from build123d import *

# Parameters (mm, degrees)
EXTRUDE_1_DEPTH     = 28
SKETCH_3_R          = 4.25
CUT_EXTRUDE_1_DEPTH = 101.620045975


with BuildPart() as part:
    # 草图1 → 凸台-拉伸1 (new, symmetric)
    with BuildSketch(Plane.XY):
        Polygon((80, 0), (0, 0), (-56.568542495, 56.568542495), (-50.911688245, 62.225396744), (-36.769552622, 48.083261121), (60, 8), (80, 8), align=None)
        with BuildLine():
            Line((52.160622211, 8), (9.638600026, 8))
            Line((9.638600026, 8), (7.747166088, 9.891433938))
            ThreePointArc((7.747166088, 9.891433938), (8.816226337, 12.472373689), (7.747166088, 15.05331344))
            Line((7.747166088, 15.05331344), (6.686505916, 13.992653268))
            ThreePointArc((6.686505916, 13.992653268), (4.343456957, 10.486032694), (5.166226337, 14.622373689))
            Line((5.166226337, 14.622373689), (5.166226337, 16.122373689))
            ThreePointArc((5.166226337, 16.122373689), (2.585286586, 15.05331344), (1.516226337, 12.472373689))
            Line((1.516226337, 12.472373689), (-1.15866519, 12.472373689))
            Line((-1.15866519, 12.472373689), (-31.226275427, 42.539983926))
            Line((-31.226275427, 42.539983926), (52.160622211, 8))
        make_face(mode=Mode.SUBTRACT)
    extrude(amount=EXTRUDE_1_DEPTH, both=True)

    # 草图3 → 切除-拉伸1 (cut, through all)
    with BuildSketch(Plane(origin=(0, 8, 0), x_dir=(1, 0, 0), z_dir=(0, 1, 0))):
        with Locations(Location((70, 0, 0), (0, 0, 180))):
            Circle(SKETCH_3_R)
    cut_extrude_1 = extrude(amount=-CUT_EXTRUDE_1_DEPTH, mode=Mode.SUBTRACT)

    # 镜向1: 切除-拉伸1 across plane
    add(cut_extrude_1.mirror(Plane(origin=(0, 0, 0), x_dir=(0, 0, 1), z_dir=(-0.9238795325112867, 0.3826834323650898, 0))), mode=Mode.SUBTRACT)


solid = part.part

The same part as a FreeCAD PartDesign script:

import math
import FreeCAD as App
import Part
import Sketcher
from FreeCAD import Vector
Q = App.Units.Quantity


def add_polygon(sketch, points):
    """Adds a closed chain of lines whose ends are joined by coincident constraints."""
    first, n = sketch.GeometryCount, len(points)
    for a, b in zip(points, points[1:] + points[:1]):
        sketch.addGeometry(Part.LineSegment(App.Vector(*a, 0), App.Vector(*b, 0)), False)
    for i in range(n):
        sketch.addConstraint(Sketcher.Constraint("Coincident", first + i, 2, first + (i + 1) % n, 1))

doc = App.newDocument("Part")
params = doc.addObject("Spreadsheet::Sheet", "Params")
for row, (alias, value) in enumerate([
    ("sketch1_width", "80 mm"),
    ("sketch1_width2", "20 mm"),
    ("sketch1_height", "8 mm"),
    ("sketch1_radius", "3.65 mm"),
    ("sketch1_radius2", "2.15 mm"),
    ("pad1_length", "56 mm"),
    ("sketch2_diameter", "8.5 mm"),
], start=1):
    params.set(f"A{row}", alias)
    params.set(f"B{row}", "=" + value)
    params.setAlias(f"B{row}", alias)

body = doc.addObject("PartDesign::Body", "Body")

sketch1 = doc.addObject("Sketcher::SketchObject", "Sketch")
body.addObject(sketch1)
sketch1.AttachmentSupport = (doc.XY_Plane, [""])
sketch1.MapMode = "FlatFace"
add_polygon(sketch1, [(0, 0), (80, 0), (80, 8), (60, 8), (-36.769553, 48.083261), (-50.911688, 62.225397), (-56.568542, 56.568542)])
sketch1.addGeometry(Part.LineSegment(Vector(52.160622, 8, 0), Vector(9.6386, 8, 0)), False)
sketch1.addGeometry(Part.LineSegment(Vector(9.6386, 8, 0), Vector(7.747166, 9.891434, 0)), False)
sketch1.addGeometry(Part.ArcOfCircle(Part.Circle(Vector(5.166226, 12.472374, 0), Vector(0, 0, 1), 3.65), math.radians(-45), math.radians(45)), False)
sketch1.addGeometry(Part.LineSegment(Vector(7.747166, 15.053313, 0), Vector(6.686506, 13.992653, 0)), False)
sketch1.addGeometry(Part.ArcOfCircle(Part.Circle(Vector(5.166226, 12.472374, 0), Vector(0, 0, 1), 2.15), math.radians(90), math.radians(405)), False)
sketch1.addGeometry(Part.LineSegment(Vector(5.166226, 14.622374, 0), Vector(5.166226, 16.122374, 0)), False)
sketch1.addGeometry(Part.ArcOfCircle(Part.Circle(Vector(5.166226, 12.472374, 0), Vector(0, 0, 1), 3.65), math.radians(90), math.radians(180)), False)
sketch1.addGeometry(Part.LineSegment(Vector(1.516226, 12.472374, 0), Vector(-1.158665, 12.472374, 0)), False)
sketch1.addGeometry(Part.LineSegment(Vector(-1.158665, 12.472374, 0), Vector(-31.226275, 42.539984, 0)), False)
sketch1.addGeometry(Part.LineSegment(Vector(-31.226275, 42.539984, 0), Vector(52.160622, 8, 0)), False)
sketch1.addConstraint(Sketcher.Constraint("Coincident", 7, 2, 8, 1))
sketch1.addConstraint(Sketcher.Constraint("Coincident", 8, 2, 9, 1))
sketch1.addConstraint(Sketcher.Constraint("Coincident", 9, 2, 10, 1))
sketch1.addConstraint(Sketcher.Constraint("Coincident", 10, 2, 11, 2))
sketch1.addConstraint(Sketcher.Constraint("Coincident", 11, 1, 12, 1))
sketch1.addConstraint(Sketcher.Constraint("Coincident", 12, 2, 13, 1))
sketch1.addConstraint(Sketcher.Constraint("Coincident", 13, 2, 14, 1))
sketch1.addConstraint(Sketcher.Constraint("Coincident", 14, 2, 15, 1))
sketch1.addConstraint(Sketcher.Constraint("Coincident", 15, 2, 16, 1))
sketch1.addConstraint(Sketcher.Constraint("Coincident", 16, 2, 7, 1))
sketch1.addConstraint(Sketcher.Constraint("Horizontal", 0))
sketch1.addConstraint(Sketcher.Constraint("Vertical", 1))
sketch1.addConstraint(Sketcher.Constraint("Horizontal", 2))
sketch1.addConstraint(Sketcher.Constraint("Horizontal", 7))
sketch1.addConstraint(Sketcher.Constraint("Vertical", 12))
sketch1.addConstraint(Sketcher.Constraint("Horizontal", 14))
sketch1.addConstraint(Sketcher.Constraint("Coincident", 6, 2, -1, 1))
sketch1.addConstraint(Sketcher.Constraint("Coincident", 11, 3, 9, 3))
sketch1.addConstraint(Sketcher.Constraint("Coincident", 13, 3, 9, 3))
sketch1.addConstraint(Sketcher.Constraint("Equal", 9, 13))
sketch1.addConstraint(Sketcher.Constraint("Perpendicular", 4, 5))
sketch1.addConstraint(Sketcher.Constraint("Perpendicular", 5, 6))
sketch1.addConstraint(Sketcher.Constraint("Parallel", 6, 8))
sketch1.addConstraint(Sketcher.Constraint("Perpendicular", 8, 10))
sketch1.addConstraint(Sketcher.Constraint("Perpendicular", 10, 15))
sketch1.addConstraint(Sketcher.Constraint("Parallel", 3, 16))
sketch1.addConstraint(Sketcher.Constraint("Horizontal", 2, 2, 7, 2))
sketch1.addConstraint(Sketcher.Constraint("Horizontal", 11, 3, 13, 2))
sketch1.addConstraint(Sketcher.Constraint("Vertical", 8, 2, 9, 2))
sketch1.addConstraint(Sketcher.Constraint("Vertical", 13, 3, 11, 1))
sketch1.addConstraint(Sketcher.Constraint("DistanceX", 0, 1, 0, 2, Q("80 mm")))
sketch1.addConstraint(Sketcher.Constraint("DistanceX", 2, 2, 2, 1, Q("20 mm")))
sketch1.addConstraint(Sketcher.Constraint("DistanceY", 1, 1, 1, 2, Q("8 mm")))
sketch1.addConstraint(Sketcher.Constraint("Angle", 4, Q("135 deg")))
sketch1.addConstraint(Sketcher.Constraint("Radius", 9, Q("3.65 mm")))
sketch1.addConstraint(Sketcher.Constraint("Radius", 11, Q("2.15 mm")))
sketch1.addConstraint(Sketcher.Constraint("Distance", 4, Q("20 mm")))
sketch1.addConstraint(Sketcher.Constraint("Distance", 5, Q("8 mm")))
sketch1.addConstraint(Sketcher.Constraint("Distance", 6, Q("80 mm")))
sketch1.addConstraint(Sketcher.Constraint("DistanceX", 14, 2, 14, 1, Q("2.674892 mm")))
sketch1.addConstraint(Sketcher.Constraint("DistanceX", -1, 1, 7, 2, Q("9.6386 mm")))
sketch1.addConstraint(Sketcher.Constraint("DistanceX", 15, 2, 13, 2, Q("32.742502 mm")))
sketch1.addConstraint(Sketcher.Constraint("Distance", 8, Q("2.674892 mm")))
sketch1.addConstraint(Sketcher.Constraint("DistanceX", 7, 2, 7, 1, Q("42.522022 mm")))
sketch1.setExpression("Constraints[37]", "Params.sketch1_width")
sketch1.setExpression("Constraints[38]", "Params.sketch1_width2")
sketch1.setExpression("Constraints[39]", "Params.sketch1_height")
sketch1.setExpression("Constraints[41]", "Params.sketch1_radius")
sketch1.setExpression("Constraints[42]", "Params.sketch1_radius2")
pad1 = doc.addObject("PartDesign::Pad", "Pad")
body.addObject(pad1)
pad1.Profile = sketch1
pad1.setExpression("Length", "Params.pad1_length")
pad1.Midplane = True

sketch2 = doc.addObject("Sketcher::SketchObject", "Sketch001")
body.addObject(sketch2)
sketch2.AttachmentSupport = (doc.XZ_Plane, [""])
sketch2.MapMode = "FlatFace"
sketch2.AttachmentOffset = App.Placement(Vector(0, 0, -8), App.Rotation())
sketch2.addGeometry(Part.Circle(Vector(70, 0, 0), Vector(0, 0, 1), 4.25), False)
sketch2.addConstraint(Sketcher.Constraint("PointOnObject", 0, 3, -1))
sketch2.addConstraint(Sketcher.Constraint("Diameter", 0, Q("8.5 mm")))
sketch2.addConstraint(Sketcher.Constraint("DistanceX", -1, 1, 0, 3, Q("70 mm")))
sketch2.setExpression("Constraints[1]", "Params.sketch2_diameter")
pocket1 = doc.addObject("PartDesign::Pocket", "Pocket")
body.addObject(pocket1)
pocket1.Profile = sketch2
pocket1.Type = "ThroughAll"
pocket1.Reversed = True
doc.recompute()

datumplane = doc.addObject("PartDesign::Plane", "DatumPlane")
body.addObject(datumplane)
datumplane.Placement = App.Placement(Vector(0, 0, 0), App.Rotation(Vector(0.382683432, 0.923879533, 0), Vector(0, 0, -1), Vector(-0.923879533, 0.382683432, 0), "ZXY"))
mirrored = doc.addObject("PartDesign::Mirrored", "Mirrored")
body.addObject(mirrored)
mirrored.Originals = [pocket1]
mirrored.MirrorPlane = (datumplane, [""])
body.Tip = mirrored

doc.recompute()
